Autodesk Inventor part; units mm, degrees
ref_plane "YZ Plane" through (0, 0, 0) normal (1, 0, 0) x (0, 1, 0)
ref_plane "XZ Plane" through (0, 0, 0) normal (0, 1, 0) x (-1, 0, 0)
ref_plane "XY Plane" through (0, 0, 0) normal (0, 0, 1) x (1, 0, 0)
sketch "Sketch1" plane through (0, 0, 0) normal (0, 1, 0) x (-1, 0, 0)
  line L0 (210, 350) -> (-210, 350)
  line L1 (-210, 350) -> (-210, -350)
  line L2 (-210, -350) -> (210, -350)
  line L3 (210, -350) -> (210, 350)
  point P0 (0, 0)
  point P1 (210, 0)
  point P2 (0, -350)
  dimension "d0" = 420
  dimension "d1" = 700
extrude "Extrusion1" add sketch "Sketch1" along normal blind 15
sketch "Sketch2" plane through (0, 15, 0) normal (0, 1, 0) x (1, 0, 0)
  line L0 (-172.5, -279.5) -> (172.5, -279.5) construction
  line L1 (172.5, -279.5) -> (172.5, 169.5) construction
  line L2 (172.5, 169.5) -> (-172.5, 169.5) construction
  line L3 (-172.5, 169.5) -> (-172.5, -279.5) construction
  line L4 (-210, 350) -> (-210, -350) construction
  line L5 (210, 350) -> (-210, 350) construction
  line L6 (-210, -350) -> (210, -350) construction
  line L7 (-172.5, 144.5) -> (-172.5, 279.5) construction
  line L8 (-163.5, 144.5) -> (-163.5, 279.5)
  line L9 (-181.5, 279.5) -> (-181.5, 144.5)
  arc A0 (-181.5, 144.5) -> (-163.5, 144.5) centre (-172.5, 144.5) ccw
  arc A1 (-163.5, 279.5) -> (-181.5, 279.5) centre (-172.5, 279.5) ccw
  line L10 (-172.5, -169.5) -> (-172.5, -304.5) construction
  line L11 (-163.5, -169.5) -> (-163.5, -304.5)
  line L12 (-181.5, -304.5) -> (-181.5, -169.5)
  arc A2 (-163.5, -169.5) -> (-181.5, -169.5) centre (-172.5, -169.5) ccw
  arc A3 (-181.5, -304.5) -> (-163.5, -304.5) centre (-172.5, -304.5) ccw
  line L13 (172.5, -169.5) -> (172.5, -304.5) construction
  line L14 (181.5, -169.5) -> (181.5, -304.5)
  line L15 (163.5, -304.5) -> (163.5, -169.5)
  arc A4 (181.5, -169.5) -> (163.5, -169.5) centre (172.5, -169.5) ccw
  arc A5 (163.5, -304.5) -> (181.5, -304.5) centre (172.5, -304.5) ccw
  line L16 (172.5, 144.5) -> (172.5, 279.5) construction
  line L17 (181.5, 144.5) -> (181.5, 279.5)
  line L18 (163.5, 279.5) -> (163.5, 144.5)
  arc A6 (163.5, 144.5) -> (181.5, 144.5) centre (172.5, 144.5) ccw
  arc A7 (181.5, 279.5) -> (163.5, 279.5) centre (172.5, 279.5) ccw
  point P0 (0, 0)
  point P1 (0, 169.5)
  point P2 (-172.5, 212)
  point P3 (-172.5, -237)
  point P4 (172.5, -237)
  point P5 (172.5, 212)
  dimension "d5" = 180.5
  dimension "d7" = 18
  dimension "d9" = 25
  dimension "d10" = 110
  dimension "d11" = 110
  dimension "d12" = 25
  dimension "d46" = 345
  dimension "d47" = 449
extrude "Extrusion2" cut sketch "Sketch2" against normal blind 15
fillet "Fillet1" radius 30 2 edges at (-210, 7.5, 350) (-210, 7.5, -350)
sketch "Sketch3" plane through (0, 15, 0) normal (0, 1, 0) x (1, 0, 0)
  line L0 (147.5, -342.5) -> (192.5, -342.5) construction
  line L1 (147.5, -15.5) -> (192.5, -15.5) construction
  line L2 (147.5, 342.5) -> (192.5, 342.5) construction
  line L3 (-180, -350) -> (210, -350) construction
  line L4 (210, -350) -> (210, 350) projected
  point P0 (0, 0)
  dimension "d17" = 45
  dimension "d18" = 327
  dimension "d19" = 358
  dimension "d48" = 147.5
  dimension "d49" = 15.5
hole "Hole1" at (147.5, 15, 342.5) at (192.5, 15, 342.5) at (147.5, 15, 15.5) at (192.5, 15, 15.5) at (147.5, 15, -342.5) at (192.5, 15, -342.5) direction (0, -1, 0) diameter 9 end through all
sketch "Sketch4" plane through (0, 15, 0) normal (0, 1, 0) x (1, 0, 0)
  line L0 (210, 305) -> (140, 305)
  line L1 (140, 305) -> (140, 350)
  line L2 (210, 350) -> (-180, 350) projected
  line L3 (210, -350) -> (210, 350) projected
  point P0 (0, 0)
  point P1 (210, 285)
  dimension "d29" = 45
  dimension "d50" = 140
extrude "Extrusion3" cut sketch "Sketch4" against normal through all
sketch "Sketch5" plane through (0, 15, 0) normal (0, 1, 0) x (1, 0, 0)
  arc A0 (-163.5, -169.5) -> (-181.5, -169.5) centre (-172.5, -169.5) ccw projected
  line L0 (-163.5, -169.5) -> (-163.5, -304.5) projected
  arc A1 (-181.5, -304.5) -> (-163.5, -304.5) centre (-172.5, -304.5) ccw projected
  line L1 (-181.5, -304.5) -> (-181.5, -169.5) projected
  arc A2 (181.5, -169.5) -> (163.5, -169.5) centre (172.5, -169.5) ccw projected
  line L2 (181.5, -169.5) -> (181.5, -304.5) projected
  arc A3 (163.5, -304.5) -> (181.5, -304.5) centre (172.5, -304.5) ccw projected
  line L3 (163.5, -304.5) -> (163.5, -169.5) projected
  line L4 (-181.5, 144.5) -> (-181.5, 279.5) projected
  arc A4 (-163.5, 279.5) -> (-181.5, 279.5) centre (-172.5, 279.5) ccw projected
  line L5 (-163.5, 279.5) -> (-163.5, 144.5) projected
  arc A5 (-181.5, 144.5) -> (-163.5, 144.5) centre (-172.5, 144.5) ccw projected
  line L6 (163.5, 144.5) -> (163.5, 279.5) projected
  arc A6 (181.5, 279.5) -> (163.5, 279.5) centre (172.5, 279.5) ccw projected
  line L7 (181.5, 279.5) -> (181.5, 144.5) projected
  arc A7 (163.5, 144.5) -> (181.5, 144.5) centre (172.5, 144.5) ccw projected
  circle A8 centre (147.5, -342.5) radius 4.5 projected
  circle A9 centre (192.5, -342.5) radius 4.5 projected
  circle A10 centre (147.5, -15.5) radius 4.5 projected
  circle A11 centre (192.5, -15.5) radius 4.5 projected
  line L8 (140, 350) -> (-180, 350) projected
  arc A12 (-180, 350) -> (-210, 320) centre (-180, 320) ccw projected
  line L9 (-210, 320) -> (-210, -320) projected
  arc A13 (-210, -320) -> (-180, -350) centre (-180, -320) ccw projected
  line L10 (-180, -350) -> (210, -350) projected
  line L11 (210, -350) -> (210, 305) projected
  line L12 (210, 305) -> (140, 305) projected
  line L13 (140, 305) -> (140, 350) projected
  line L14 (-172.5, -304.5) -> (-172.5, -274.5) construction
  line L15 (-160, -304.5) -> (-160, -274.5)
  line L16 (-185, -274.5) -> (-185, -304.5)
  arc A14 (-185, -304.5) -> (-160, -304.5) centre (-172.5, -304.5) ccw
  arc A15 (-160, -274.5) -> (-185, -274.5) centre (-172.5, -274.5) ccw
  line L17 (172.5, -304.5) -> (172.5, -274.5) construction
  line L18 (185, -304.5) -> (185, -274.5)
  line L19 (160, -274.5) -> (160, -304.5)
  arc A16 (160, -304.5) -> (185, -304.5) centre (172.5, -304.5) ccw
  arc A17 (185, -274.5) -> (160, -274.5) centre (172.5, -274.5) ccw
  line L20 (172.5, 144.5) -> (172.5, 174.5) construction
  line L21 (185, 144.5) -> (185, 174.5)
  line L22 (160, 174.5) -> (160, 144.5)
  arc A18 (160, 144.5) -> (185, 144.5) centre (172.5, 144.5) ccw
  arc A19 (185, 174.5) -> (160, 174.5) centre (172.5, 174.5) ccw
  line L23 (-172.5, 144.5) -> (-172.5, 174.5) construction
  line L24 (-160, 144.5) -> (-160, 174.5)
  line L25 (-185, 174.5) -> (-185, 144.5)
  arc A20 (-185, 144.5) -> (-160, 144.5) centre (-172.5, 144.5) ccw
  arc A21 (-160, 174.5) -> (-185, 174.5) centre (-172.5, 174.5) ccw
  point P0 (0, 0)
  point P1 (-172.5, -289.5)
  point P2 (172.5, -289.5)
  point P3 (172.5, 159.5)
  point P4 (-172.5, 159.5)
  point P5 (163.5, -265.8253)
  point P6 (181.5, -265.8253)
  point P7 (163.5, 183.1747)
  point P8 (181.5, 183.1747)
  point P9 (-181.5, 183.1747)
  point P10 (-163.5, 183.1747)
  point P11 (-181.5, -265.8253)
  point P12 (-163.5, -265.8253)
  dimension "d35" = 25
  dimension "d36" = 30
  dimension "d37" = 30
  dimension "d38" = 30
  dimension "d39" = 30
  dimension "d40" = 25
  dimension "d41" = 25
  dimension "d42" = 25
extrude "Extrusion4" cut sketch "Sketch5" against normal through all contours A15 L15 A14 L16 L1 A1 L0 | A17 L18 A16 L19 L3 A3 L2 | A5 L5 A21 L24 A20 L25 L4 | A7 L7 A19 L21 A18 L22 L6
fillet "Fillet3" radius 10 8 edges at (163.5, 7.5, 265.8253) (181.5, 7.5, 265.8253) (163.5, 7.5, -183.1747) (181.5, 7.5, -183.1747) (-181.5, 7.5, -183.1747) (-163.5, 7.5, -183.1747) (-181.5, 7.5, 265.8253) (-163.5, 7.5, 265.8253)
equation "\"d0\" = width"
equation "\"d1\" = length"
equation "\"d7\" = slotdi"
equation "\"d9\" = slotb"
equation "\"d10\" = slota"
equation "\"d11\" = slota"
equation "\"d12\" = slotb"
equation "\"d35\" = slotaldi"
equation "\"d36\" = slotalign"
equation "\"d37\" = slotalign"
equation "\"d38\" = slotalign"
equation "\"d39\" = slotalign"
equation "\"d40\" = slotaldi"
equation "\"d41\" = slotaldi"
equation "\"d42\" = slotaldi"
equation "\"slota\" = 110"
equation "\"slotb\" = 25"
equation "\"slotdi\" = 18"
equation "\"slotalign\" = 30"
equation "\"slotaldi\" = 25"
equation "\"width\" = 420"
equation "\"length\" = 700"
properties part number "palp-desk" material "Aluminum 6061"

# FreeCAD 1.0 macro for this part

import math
import FreeCAD as App
import Part
import Sketcher
from FreeCAD import Vector
Q = App.Units.Quantity


def edges_at(feature, points):
    """Names of the edges that pass closest to the given points."""
    edges = feature.Shape.Edges
    near = lambda p: min(range(len(edges)), key=lambda i: edges[i].distToShape(Part.Vertex(*p))[0])
    return sorted({f"Edge{near(p) + 1}" for p in points})


def add_polygon(sketch, points):
    """Adds a closed chain of lines whose ends are joined by coincident constraints."""
    first, n = sketch.GeometryCount, len(points)
    for a, b in zip(points, points[1:] + points[:1]):
        sketch.addGeometry(Part.LineSegment(App.Vector(*a, 0), App.Vector(*b, 0)), False)
    for i in range(n):
        sketch.addConstraint(Sketcher.Constraint("Coincident", first + i, 2, first + (i + 1) % n, 1))

doc = App.newDocument("Part")
body = doc.addObject("PartDesign::Body", "Body")

# Sketch on XZ plane
sketch1 = doc.addObject("Sketcher::SketchObject", "Sketch")
body.addObject(sketch1)
sketch1.AttachmentSupport = (doc.XZ_Plane, [""])
sketch1.MapMode = "FlatFace"
add_polygon(sketch1, [(-210, -350), (-210, 350), (210, 350), (210, -350)])  # lines 0-3
sketch1.addConstraint(Sketcher.Constraint("Vertical", 0))
sketch1.addConstraint(Sketcher.Constraint("Horizontal", 1))
sketch1.addConstraint(Sketcher.Constraint("Vertical", 2))
sketch1.addConstraint(Sketcher.Constraint("Horizontal", 3))
sketch1.addConstraint(Sketcher.Constraint("Symmetric", 0, 2, 2, 2, -1, 1))
sketch1.addConstraint(Sketcher.Constraint("DistanceX", 1, 1, 1, 2, Q("420 mm")))
sketch1.addConstraint(Sketcher.Constraint("DistanceY", 0, 1, 0, 2, Q("700 mm")))
pad1 = doc.addObject("PartDesign::Pad", "Pad")
body.addObject(pad1)
pad1.Profile = sketch1
pad1.Length = 15
pad1.Reversed = True

# Sketch on XZ plane
sketch2 = doc.addObject("Sketcher::SketchObject", "Sketch001")
body.addObject(sketch2)
sketch2.AttachmentSupport = (doc.XZ_Plane, [""])
sketch2.MapMode = "FlatFace"
sketch2.AttachmentOffset = App.Placement(Vector(0, 0, -15), App.Rotation())
sketch2.addGeometry(Part.ArcOfCircle(Part.Circle(Vector(-172, -144, 0), Vector(0, 0, 1), 9), math.radians(0), math.radians(180)), False)
sketch2.addGeometry(Part.LineSegment(Vector(-164, -144, 0), Vector(-164, -280, 0)), False)
sketch2.addGeometry(Part.ArcOfCircle(Part.Circle(Vector(-172, -280, 0), Vector(0, 0, 1), 9), math.radians(180), math.radians(360)), False)
sketch2.addGeometry(Part.LineSegment(Vector(-182, -280, 0), Vector(-182, -144, 0)), False)
sketch2.addGeometry(Part.LineSegment(Vector(-164, 304, 0), Vector(-164, 170, 0)), False)
sketch2.addGeometry(Part.ArcOfCircle(Part.Circle(Vector(-172, 170, 0), Vector(0, 0, 1), 9), math.radians(180), math.radians(360)), False)
sketch2.addGeometry(Part.LineSegment(Vector(-182, 170, 0), Vector(-182, 304, 0)), False)
sketch2.addGeometry(Part.ArcOfCircle(Part.Circle(Vector(-172, 304, 0), Vector(0, 0, 1), 9), math.radians(0), math.radians(180)), False)
sketch2.addGeometry(Part.LineSegment(Vector(182, 304, 0), Vector(182, 170, 0)), False)
sketch2.addGeometry(Part.ArcOfCircle(Part.Circle(Vector(172, 170, 0), Vector(0, 0, 1), 9), math.radians(180), math.radians(360)), False)
sketch2.addGeometry(Part.LineSegment(Vector(164, 170, 0), Vector(164, 304, 0)), False)
sketch2.addGeometry(Part.ArcOfCircle(Part.Circle(Vector(172, 304, 0), Vector(0, 0, 1), 9), math.radians(0), math.radians(180)), False)
sketch2.addGeometry(Part.ArcOfCircle(Part.Circle(Vector(172, -144, 0), Vector(0, 0, 1), 9), math.radians(0), math.radians(180)), False)
sketch2.addGeometry(Part.LineSegment(Vector(182, -144, 0), Vector(182, -280, 0)), False)
sketch2.addGeometry(Part.ArcOfCircle(Part.Circle(Vector(172, -280, 0), Vector(0, 0, 1), 9), math.radians(180), math.radians(360)), False)
sketch2.addGeometry(Part.LineSegment(Vector(164, -280, 0), Vector(164, -144, 0)), False)
sketch2.addConstraint(Sketcher.Constraint("Tangent", 0, 1, 1, 1))
sketch2.addConstraint(Sketcher.Constraint("Tangent", 1, 2, 2, 2))
sketch2.addConstraint(Sketcher.Constraint("Tangent", 2, 1, 3, 1))
sketch2.addConstraint(Sketcher.Constraint("Tangent", 3, 2, 0, 2))
sketch2.addConstraint(Sketcher.Constraint("Tangent", 4, 2, 5, 2))
sketch2.addConstraint(Sketcher.Constraint("Tangent", 5, 1, 6, 1))
sketch2.addConstraint(Sketcher.Constraint("Tangent", 6, 2, 7, 2))
sketch2.addConstraint(Sketcher.Constraint("Tangent", 7, 1, 4, 1))
sketch2.addConstraint(Sketcher.Constraint("Tangent", 8, 2, 9, 2))
sketch2.addConstraint(Sketcher.Constraint("Tangent", 9, 1, 10, 1))
sketch2.addConstraint(Sketcher.Constraint("Tangent", 10, 2, 11, 2))
sketch2.addConstraint(Sketcher.Constraint("Tangent", 11, 1, 8, 1))
sketch2.addConstraint(Sketcher.Constraint("Tangent", 12, 1, 13, 1))
sketch2.addConstraint(Sketcher.Constraint("Tangent", 13, 2, 14, 2))
sketch2.addConstraint(Sketcher.Constraint("Tangent", 14, 1, 15, 1))
sketch2.addConstraint(Sketcher.Constraint("Tangent", 15, 2, 12, 2))
sketch2.addConstraint(Sketcher.Constraint("Vertical", 1))
sketch2.addConstraint(Sketcher.Constraint("Vertical", 3))
sketch2.addConstraint(Sketcher.Constraint("Vertical", 4))
sketch2.addConstraint(Sketcher.Constraint("Vertical", 6))
sketch2.addConstraint(Sketcher.Constraint("Vertical", 8))
sketch2.addConstraint(Sketcher.Constraint("Vertical", 10))
sketch2.addConstraint(Sketcher.Constraint("Vertical", 13))
sketch2.addConstraint(Sketcher.Constraint("Vertical", 15))
sketch2.addConstraint(Sketcher.Constraint("Equal", 2, 5))
sketch2.addConstraint(Sketcher.Constraint("Equal", 7, 9))
sketch2.addConstraint(Sketcher.Constraint("Equal", 11, 12))
sketch2.addConstraint(Sketcher.Constraint("Symmetric", 5, 3, 9, 3, -2))
sketch2.addConstraint(Sketcher.Constraint("Symmetric", 0, 3, 12, 3, -2))
sketch2.addConstraint(Sketcher.Constraint("Horizontal", 7, 3, 11, 3))
sketch2.addConstraint(Sketcher.Constraint("Horizontal", 2, 3, 14, 3))
sketch2.addConstraint(Sketcher.Constraint("Vertical", 2, 3, 5, 3))
sketch2.addConstraint(Sketcher.Constraint("Equal", 3, 4))
sketch2.addConstraint(Sketcher.Constraint("Radius", 0, Q("9 mm")))
sketch2.addConstraint(Sketcher.Constraint("DistanceY", 2, 3, 5, 3, Q("449 mm")))
sketch2.addConstraint(Sketcher.Constraint("DistanceX", 5, 3, 9, 3, Q("345 mm")))
sketch2.addConstraint(Sketcher.Constraint("DistanceY", 1, 2, 1, 1, Q("135 mm")))
sketch2.addConstraint(Sketcher.Constraint("DistanceY", 0, 3, -1, 1, Q("144.5 mm")))
pocket1 = doc.addObject("PartDesign::Pocket", "Pocket")
body.addObject(pocket1)
pocket1.Profile = sketch2
pocket1.Length = 15
pocket1.Reversed = True
doc.recompute()

fillet = doc.addObject("PartDesign::Fillet", "Fillet")
body.addObject(fillet)
fillet.Base = (pocket1, edges_at(pocket1, [(-210, 7.5, 350), (-210, 7.5, -350)]))
fillet.Radius = 30

# Sketch on XZ plane
sketch3 = doc.addObject("Sketcher::SketchObject", "Sketch002")
body.addObject(sketch3)
sketch3.AttachmentSupport = (doc.XZ_Plane, [""])
sketch3.MapMode = "FlatFace"
sketch3.AttachmentOffset = App.Placement(Vector(0, 0, -15), App.Rotation())
sketch3.addGeometry(Part.Circle(Vector(147.5, 342.5, 0), Vector(0, 0, 1), 4.5), False)
sketch3.addGeometry(Part.Circle(Vector(192.5, 342.5, 0), Vector(0, 0, 1), 4.5), False)
sketch3.addGeometry(Part.Circle(Vector(147.5, 15.5, 0), Vector(0, 0, 1), 4.5), False)
sketch3.addGeometry(Part.Circle(Vector(192.5, 15.5, 0), Vector(0, 0, 1), 4.5), False)
sketch3.addGeometry(Part.Circle(Vector(147.5, -342.5, 0), Vector(0, 0, 1), 4.5), False)
sketch3.addGeometry(Part.Circle(Vector(192.5, -342.5, 0), Vector(0, 0, 1), 4.5), False)
sketch3.addConstraint(Sketcher.Constraint("Equal", 0, 1))
sketch3.addConstraint(Sketcher.Constraint("Equal", 1, 2))
sketch3.addConstraint(Sketcher.Constraint("Equal", 2, 3))
sketch3.addConstraint(Sketcher.Constraint("Equal", 3, 4))
sketch3.addConstraint(Sketcher.Constraint("Equal", 4, 5))
sketch3.addConstraint(Sketcher.Constraint("Symmetric", 0, 3, 4, 3, -1))
sketch3.addConstraint(Sketcher.Constraint("Symmetric", 1, 3, 5, 3, -1))
sketch3.addConstraint(Sketcher.Constraint("Horizontal", 0, 3, 1, 3))
sketch3.addConstraint(Sketcher.Constraint("Horizontal", 2, 3, 3, 3))
sketch3.addConstraint(Sketcher.Constraint("Vertical", 0, 3, 2, 3))
sketch3.addConstraint(Sketcher.Constraint("Vertical", 1, 3, 3, 3))
sketch3.addConstraint(Sketcher.Constraint("Diameter", 0, Q("9 mm")))
sketch3.addConstraint(Sketcher.Constraint("DistanceX", 0, 3, 1, 3, Q("45 mm")))
sketch3.addConstraint(Sketcher.Constraint("DistanceY", 2, 3, 0, 3, Q("327 mm")))
sketch3.addConstraint(Sketcher.Constraint("DistanceY", 4, 3, 2, 3, Q("358 mm")))
sketch3.addConstraint(Sketcher.Constraint("DistanceX", -1, 1, 0, 3, Q("147.5 mm")))
doc.recompute()
hole = doc.addObject("PartDesign::Hole", "Hole")
body.addObject(hole)
hole.Profile = sketch3
hole.ThreadType = "None"
hole.Diameter = 9
hole.DepthType = "ThroughAll"
hole.Reversed = True

# Sketch on XZ plane
sketch4 = doc.addObject("Sketcher::SketchObject", "Sketch003")
body.addObject(sketch4)
sketch4.AttachmentSupport = (doc.XZ_Plane, [""])
sketch4.MapMode = "FlatFace"
sketch4.AttachmentOffset = App.Placement(Vector(0, 0, -15), App.Rotation())
add_polygon(sketch4, [(140, -305), (210, -305), (210, -350), (140, -350)])  # lines 0-3
sketch4.addConstraint(Sketcher.Constraint("Horizontal", 0))
sketch4.addConstraint(Sketcher.Constraint("Vertical", 1))
sketch4.addConstraint(Sketcher.Constraint("Horizontal", 2))
sketch4.addConstraint(Sketcher.Constraint("Vertical", 3))
sketch4.addConstraint(Sketcher.Constraint("DistanceY", 1, 2, 1, 1, Q("45 mm")))
sketch4.addConstraint(Sketcher.Constraint("DistanceX", -1, 1, 2, 2, Q("140 mm")))
sketch4.addConstraint(Sketcher.Constraint("DistanceX", 0, 1, 0, 2, Q("70 mm")))
sketch4.addConstraint(Sketcher.Constraint("DistanceY", 0, 2, -1, 1, Q("305 mm")))
pocket2 = doc.addObject("PartDesign::Pocket", "Pocket001")
body.addObject(pocket2)
pocket2.Profile = sketch4
pocket2.Type = "ThroughAll"
pocket2.Reversed = True

# Sketch on XZ plane
sketch5 = doc.addObject("Sketcher::SketchObject", "Sketch004")
body.addObject(sketch5)
sketch5.AttachmentSupport = (doc.XZ_Plane, [""])
sketch5.MapMode = "FlatFace"
sketch5.AttachmentOffset = App.Placement(Vector(0, 0, -15), App.Rotation())
sketch5.addGeometry(Part.ArcOfCircle(Part.Circle(Vector(-172, 274, 0), Vector(0, 0, 1), 12), math.radians(-44), math.radians(0)), False)
sketch5.addGeometry(Part.LineSegment(Vector(-164, 266, 0), Vector(-164, 304, 0)), False)
sketch5.addGeometry(Part.ArcOfCircle(Part.Circle(Vector(-172, 304, 0), Vector(0, 0, 1), 9), math.radians(0), math.radians(180)), False)
sketch5.addGeometry(Part.LineSegment(Vector(-182, 304, 0), Vector(-182, 266, 0)), False)
sketch5.addGeometry(Part.ArcOfCircle(Part.Circle(Vector(-172, 274, 0), Vector(0, 0, 1), 12), math.radians(180), math.radians(224)), False)
sketch5.addGeometry(Part.LineSegment(Vector(-185, 274, 0), Vector(-185, 304, 0)), False)
sketch5.addGeometry(Part.ArcOfCircle(Part.Circle(Vector(-172, 304, 0), Vector(0, 0, 1), 12), math.radians(0), math.radians(180)), False)
sketch5.addGeometry(Part.LineSegment(Vector(-160, 304, 0), Vector(-160, 274, 0)), False)
sketch5.addGeometry(Part.ArcOfCircle(Part.Circle(Vector(172, 274, 0), Vector(0, 0, 1), 12), math.radians(-44), math.radians(0)), False)
sketch5.addGeometry(Part.LineSegment(Vector(182, 266, 0), Vector(182, 304, 0)), False)
sketch5.addGeometry(Part.ArcOfCircle(Part.Circle(Vector(172, 304, 0), Vector(0, 0, 1), 9), math.radians(0), math.radians(180)), False)
sketch5.addGeometry(Part.LineSegment(Vector(164, 304, 0), Vector(164, 266, 0)), False)
sketch5.addGeometry(Part.ArcOfCircle(Part.Circle(Vector(172, 274, 0), Vector(0, 0, 1), 12), math.radians(180), math.radians(224)), False)
sketch5.addGeometry(Part.LineSegment(Vector(160, 274, 0), Vector(160, 304, 0)), False)
sketch5.addGeometry(Part.ArcOfCircle(Part.Circle(Vector(172, 304, 0), Vector(0, 0, 1), 12), math.radians(0), math.radians(180)), False)
sketch5.addGeometry(Part.LineSegment(Vector(185, 304, 0), Vector(185, 274, 0)), False)
sketch5.addGeometry(Part.ArcOfCircle(Part.Circle(Vector(-172, -144, 0), Vector(0, 0, 1), 9), math.radians(0), math.radians(180)), False)
sketch5.addGeometry(Part.LineSegment(Vector(-182, -144, 0), Vector(-182, -183, 0)), False)
sketch5.addGeometry(Part.ArcOfCircle(Part.Circle(Vector(-172, -174, 0), Vector(0, 0, 1), 12), math.radians(180), math.radians(224)), False)
sketch5.addGeometry(Part.LineSegment(Vector(-185, -174, 0), Vector(-185, -144, 0)), False)
sketch5.addGeometry(Part.ArcOfCircle(Part.Circle(Vector(-172, -144, 0), Vector(0, 0, 1), 12), math.radians(0), math.radians(180)), False)
sketch5.addGeometry(Part.LineSegment(Vector(-160, -144, 0), Vector(-160, -174, 0)), False)
sketch5.addGeometry(Part.ArcOfCircle(Part.Circle(Vector(-172, -174, 0), Vector(0, 0, 1), 12), math.radians(-44), math.radians(0)), False)
sketch5.addGeometry(Part.LineSegment(Vector(-164, -183, 0), Vector(-164, -144, 0)), False)
sketch5.addGeometry(Part.ArcOfCircle(Part.Circle(Vector(172, -144, 0), Vector(0, 0, 1), 9), math.radians(0), math.radians(180)), False)
sketch5.addGeometry(Part.LineSegment(Vector(164, -144, 0), Vector(164, -183, 0)), False)
sketch5.addGeometry(Part.ArcOfCircle(Part.Circle(Vector(172, -174, 0), Vector(0, 0, 1), 12), math.radians(180), math.radians(224)), False)
sketch5.addGeometry(Part.LineSegment(Vector(160, -174, 0), Vector(160, -144, 0)), False)
sketch5.addGeometry(Part.ArcOfCircle(Part.Circle(Vector(172, -144, 0), Vector(0, 0, 1), 12), math.radians(0), math.radians(180)), False)
sketch5.addGeometry(Part.LineSegment(Vector(185, -144, 0), Vector(185, -174, 0)), False)
sketch5.addGeometry(Part.ArcOfCircle(Part.Circle(Vector(172, -174, 0), Vector(0, 0, 1), 12), math.radians(-44), math.radians(0)), False)
sketch5.addGeometry(Part.LineSegment(Vector(182, -183, 0), Vector(182, -144, 0)), False)
sketch5.addConstraint(Sketcher.Constraint("Coincident", 0, 1, 1, 1))
sketch5.addConstraint(Sketcher.Constraint("Tangent", 1, 2, 2, 1))
sketch5.addConstraint(Sketcher.Constraint("Tangent", 2, 2, 3, 1))
sketch5.addConstraint(Sketcher.Constraint("Coincident", 3, 2, 4, 2))
sketch5.addConstraint(Sketcher.Constraint("Tangent", 4, 1, 5, 1))
sketch5.addConstraint(Sketcher.Constraint("Tangent", 5, 2, 6, 2))
sketch5.addConstraint(Sketcher.Constraint("Tangent", 6, 1, 7, 1))
sketch5.addConstraint(Sketcher.Constraint("Tangent", 7, 2, 0, 2))
sketch5.addConstraint(Sketcher.Constraint("Coincident", 8, 1, 9, 1))
sketch5.addConstraint(Sketcher.Constraint("Tangent", 9, 2, 10, 1))
sketch5.addConstraint(Sketcher.Constraint("Tangent", 10, 2, 11, 1))
sketch5.addConstraint(Sketcher.Constraint("Coincident", 11, 2, 12, 2))
sketch5.addConstraint(Sketcher.Constraint("Tangent", 12, 1, 13, 1))
sketch5.addConstraint(Sketcher.Constraint("Tangent", 13, 2, 14, 2))
sketch5.addConstraint(Sketcher.Constraint("Tangent", 14, 1, 15, 1))
sketch5.addConstraint(Sketcher.Constraint("Tangent", 15, 2, 8, 2))
sketch5.addConstraint(Sketcher.Constraint("Tangent", 16, 2, 17, 1))
sketch5.addConstraint(Sketcher.Constraint("Coincident", 17, 2, 18, 2))
sketch5.addConstraint(Sketcher.Constraint("Tangent", 18, 1, 19, 1))
sketch5.addConstraint(Sketcher.Constraint("Tangent", 19, 2, 20, 2))
sketch5.addConstraint(Sketcher.Constraint("Tangent", 20, 1, 21, 1))
sketch5.addConstraint(Sketcher.Constraint("Tangent", 21, 2, 22, 2))
sketch5.addConstraint(Sketcher.Constraint("Coincident", 22, 1, 23, 1))
sketch5.addConstraint(Sketcher.Constraint("Tangent", 23, 2, 16, 1))
sketch5.addConstraint(Sketcher.Constraint("Tangent", 24, 2, 25, 1))
sketch5.addConstraint(Sketcher.Constraint("Coincident", 25, 2, 26, 2))
sketch5.addConstraint(Sketcher.Constraint("Tangent", 26, 1, 27, 1))
sketch5.addConstraint(Sketcher.Constraint("Tangent", 27, 2, 28, 2))
sketch5.addConstraint(Sketcher.Constraint("Tangent", 28, 1, 29, 1))
sketch5.addConstraint(Sketcher.Constraint("Tangent", 29, 2, 30, 2))
sketch5.addConstraint(Sketcher.Constraint("Coincident", 30, 1, 31, 1))
sketch5.addConstraint(Sketcher.Constraint("Tangent", 31, 2, 24, 1))
sketch5.addConstraint(Sketcher.Constraint("Vertical", 1))
sketch5.addConstraint(Sketcher.Constraint("Vertical", 3))
sketch5.addConstraint(Sketcher.Constraint("Vertical", 5))
sketch5.addConstraint(Sketcher.Constraint("Vertical", 7))
sketch5.addConstraint(Sketcher.Constraint("Vertical", 9))
sketch5.addConstraint(Sketcher.Constraint("Vertical", 11))
sketch5.addConstraint(Sketcher.Constraint("Vertical", 13))
sketch5.addConstraint(Sketcher.Constraint("Vertical", 15))
sketch5.addConstraint(Sketcher.Constraint("Vertical", 17))
sketch5.addConstraint(Sketcher.Constraint("Vertical", 19))
sketch5.addConstraint(Sketcher.Constraint("Vertical", 21))
sketch5.addConstraint(Sketcher.Constraint("Vertical", 23))
sketch5.addConstraint(Sketcher.Constraint("Vertical", 25))
sketch5.addConstraint(Sketcher.Constraint("Vertical", 27))
sketch5.addConstraint(Sketcher.Constraint("Vertical", 29))
sketch5.addConstraint(Sketcher.Constraint("Vertical", 31))
sketch5.addConstraint(Sketcher.Constraint("Coincident", 4, 3, 0, 3))
sketch5.addConstraint(Sketcher.Constraint("Coincident", 6, 3, 2, 3))
sketch5.addConstraint(Sketcher.Constraint("Coincident", 12, 3, 8, 3))
sketch5.addConstraint(Sketcher.Constraint("Coincident", 14, 3, 10, 3))
sketch5.addConstraint(Sketcher.Constraint("Coincident", 20, 3, 16, 3))
sketch5.addConstraint(Sketcher.Constraint("Coincident", 22, 3, 18, 3))
sketch5.addConstraint(Sketcher.Constraint("Coincident", 28, 3, 24, 3))
sketch5.addConstraint(Sketcher.Constraint("Coincident", 30, 3, 26, 3))
sketch5.addConstraint(Sketcher.Constraint("Equal", 0, 4))
sketch5.addConstraint(Sketcher.Constraint("Equal", 6, 8))
sketch5.addConstraint(Sketcher.Constraint("Equal", 2, 10))
sketch5.addConstraint(Sketcher.Constraint("Equal", 8, 12))
sketch5.addConstraint(Sketcher.Constraint("Equal", 10, 16))
sketch5.addConstraint(Sketcher.Constraint("Equal", 14, 18))
sketch5.addConstraint(Sketcher.Constraint("Equal", 18, 20))
sketch5.addConstraint(Sketcher.Constraint("Equal", 16, 24))
sketch5.addConstraint(Sketcher.Constraint("Equal", 22, 26))
sketch5.addConstraint(Sketcher.Constraint("Equal", 26, 28))
sketch5.addConstraint(Sketcher.Constraint("Symmetric", 0, 3, 8, 3, -2))
sketch5.addConstraint(Sketcher.Constraint("Symmetric", 16, 3, 24, 3, -2))
sketch5.addConstraint(Sketcher.Constraint("Horizontal", 6, 3, 10, 3))
sketch5.addConstraint(Sketcher.Constraint("Horizontal", 22, 3, 26, 3))
sketch5.addConstraint(Sketcher.Constraint("Vertical", 6, 3, 16, 3))
sketch5.addConstraint(Sketcher.Constraint("Equal", 11, 17))
sketch5.addConstraint(Sketcher.Constraint("Radius", 0, Q("12.5 mm")))
sketch5.addConstraint(Sketcher.Constraint("DistanceY", 5, 1, 5, 2, Q("30 mm")))
sketch5.addConstraint(Sketcher.Constraint("Radius", 2, Q("9 mm")))
sketch5.addConstraint(Sketcher.Constraint("DistanceX", 4, 1, -1, 1, Q("185 mm")))
sketch5.addConstraint(Sketcher.Constraint("DistanceY", 16, 3, 0, 3, Q("419 mm")))
sketch5.addConstraint(Sketcher.Constraint("DistanceY", -1, 1, 0, 3, Q("274.5 mm")))
pocket3 = doc.addObject("PartDesign::Pocket", "Pocket002")
body.addObject(pocket3)
pocket3.Profile = sketch5
pocket3.Type = "ThroughAll"
pocket3.Reversed = True
doc.recompute()

fillet2 = doc.addObject("PartDesign::Fillet", "Fillet001")
body.addObject(fillet2)
fillet2.Base = (pocket3, edges_at(pocket3, [
    (163.5, 7.5, 265.825),
    (181.5, 7.5, 265.825),
    (163.5, 7.5, -183.175),
    (181.5, 7.5, -183.175),
    (-181.5, 7.5, -183.175),
    (-163.5, 7.5, -183.175),
    (-181.5, 7.5, 265.825),
    (-163.5, 7.5, 265.825),
]))
fillet2.Radius = 10

doc.recompute()
